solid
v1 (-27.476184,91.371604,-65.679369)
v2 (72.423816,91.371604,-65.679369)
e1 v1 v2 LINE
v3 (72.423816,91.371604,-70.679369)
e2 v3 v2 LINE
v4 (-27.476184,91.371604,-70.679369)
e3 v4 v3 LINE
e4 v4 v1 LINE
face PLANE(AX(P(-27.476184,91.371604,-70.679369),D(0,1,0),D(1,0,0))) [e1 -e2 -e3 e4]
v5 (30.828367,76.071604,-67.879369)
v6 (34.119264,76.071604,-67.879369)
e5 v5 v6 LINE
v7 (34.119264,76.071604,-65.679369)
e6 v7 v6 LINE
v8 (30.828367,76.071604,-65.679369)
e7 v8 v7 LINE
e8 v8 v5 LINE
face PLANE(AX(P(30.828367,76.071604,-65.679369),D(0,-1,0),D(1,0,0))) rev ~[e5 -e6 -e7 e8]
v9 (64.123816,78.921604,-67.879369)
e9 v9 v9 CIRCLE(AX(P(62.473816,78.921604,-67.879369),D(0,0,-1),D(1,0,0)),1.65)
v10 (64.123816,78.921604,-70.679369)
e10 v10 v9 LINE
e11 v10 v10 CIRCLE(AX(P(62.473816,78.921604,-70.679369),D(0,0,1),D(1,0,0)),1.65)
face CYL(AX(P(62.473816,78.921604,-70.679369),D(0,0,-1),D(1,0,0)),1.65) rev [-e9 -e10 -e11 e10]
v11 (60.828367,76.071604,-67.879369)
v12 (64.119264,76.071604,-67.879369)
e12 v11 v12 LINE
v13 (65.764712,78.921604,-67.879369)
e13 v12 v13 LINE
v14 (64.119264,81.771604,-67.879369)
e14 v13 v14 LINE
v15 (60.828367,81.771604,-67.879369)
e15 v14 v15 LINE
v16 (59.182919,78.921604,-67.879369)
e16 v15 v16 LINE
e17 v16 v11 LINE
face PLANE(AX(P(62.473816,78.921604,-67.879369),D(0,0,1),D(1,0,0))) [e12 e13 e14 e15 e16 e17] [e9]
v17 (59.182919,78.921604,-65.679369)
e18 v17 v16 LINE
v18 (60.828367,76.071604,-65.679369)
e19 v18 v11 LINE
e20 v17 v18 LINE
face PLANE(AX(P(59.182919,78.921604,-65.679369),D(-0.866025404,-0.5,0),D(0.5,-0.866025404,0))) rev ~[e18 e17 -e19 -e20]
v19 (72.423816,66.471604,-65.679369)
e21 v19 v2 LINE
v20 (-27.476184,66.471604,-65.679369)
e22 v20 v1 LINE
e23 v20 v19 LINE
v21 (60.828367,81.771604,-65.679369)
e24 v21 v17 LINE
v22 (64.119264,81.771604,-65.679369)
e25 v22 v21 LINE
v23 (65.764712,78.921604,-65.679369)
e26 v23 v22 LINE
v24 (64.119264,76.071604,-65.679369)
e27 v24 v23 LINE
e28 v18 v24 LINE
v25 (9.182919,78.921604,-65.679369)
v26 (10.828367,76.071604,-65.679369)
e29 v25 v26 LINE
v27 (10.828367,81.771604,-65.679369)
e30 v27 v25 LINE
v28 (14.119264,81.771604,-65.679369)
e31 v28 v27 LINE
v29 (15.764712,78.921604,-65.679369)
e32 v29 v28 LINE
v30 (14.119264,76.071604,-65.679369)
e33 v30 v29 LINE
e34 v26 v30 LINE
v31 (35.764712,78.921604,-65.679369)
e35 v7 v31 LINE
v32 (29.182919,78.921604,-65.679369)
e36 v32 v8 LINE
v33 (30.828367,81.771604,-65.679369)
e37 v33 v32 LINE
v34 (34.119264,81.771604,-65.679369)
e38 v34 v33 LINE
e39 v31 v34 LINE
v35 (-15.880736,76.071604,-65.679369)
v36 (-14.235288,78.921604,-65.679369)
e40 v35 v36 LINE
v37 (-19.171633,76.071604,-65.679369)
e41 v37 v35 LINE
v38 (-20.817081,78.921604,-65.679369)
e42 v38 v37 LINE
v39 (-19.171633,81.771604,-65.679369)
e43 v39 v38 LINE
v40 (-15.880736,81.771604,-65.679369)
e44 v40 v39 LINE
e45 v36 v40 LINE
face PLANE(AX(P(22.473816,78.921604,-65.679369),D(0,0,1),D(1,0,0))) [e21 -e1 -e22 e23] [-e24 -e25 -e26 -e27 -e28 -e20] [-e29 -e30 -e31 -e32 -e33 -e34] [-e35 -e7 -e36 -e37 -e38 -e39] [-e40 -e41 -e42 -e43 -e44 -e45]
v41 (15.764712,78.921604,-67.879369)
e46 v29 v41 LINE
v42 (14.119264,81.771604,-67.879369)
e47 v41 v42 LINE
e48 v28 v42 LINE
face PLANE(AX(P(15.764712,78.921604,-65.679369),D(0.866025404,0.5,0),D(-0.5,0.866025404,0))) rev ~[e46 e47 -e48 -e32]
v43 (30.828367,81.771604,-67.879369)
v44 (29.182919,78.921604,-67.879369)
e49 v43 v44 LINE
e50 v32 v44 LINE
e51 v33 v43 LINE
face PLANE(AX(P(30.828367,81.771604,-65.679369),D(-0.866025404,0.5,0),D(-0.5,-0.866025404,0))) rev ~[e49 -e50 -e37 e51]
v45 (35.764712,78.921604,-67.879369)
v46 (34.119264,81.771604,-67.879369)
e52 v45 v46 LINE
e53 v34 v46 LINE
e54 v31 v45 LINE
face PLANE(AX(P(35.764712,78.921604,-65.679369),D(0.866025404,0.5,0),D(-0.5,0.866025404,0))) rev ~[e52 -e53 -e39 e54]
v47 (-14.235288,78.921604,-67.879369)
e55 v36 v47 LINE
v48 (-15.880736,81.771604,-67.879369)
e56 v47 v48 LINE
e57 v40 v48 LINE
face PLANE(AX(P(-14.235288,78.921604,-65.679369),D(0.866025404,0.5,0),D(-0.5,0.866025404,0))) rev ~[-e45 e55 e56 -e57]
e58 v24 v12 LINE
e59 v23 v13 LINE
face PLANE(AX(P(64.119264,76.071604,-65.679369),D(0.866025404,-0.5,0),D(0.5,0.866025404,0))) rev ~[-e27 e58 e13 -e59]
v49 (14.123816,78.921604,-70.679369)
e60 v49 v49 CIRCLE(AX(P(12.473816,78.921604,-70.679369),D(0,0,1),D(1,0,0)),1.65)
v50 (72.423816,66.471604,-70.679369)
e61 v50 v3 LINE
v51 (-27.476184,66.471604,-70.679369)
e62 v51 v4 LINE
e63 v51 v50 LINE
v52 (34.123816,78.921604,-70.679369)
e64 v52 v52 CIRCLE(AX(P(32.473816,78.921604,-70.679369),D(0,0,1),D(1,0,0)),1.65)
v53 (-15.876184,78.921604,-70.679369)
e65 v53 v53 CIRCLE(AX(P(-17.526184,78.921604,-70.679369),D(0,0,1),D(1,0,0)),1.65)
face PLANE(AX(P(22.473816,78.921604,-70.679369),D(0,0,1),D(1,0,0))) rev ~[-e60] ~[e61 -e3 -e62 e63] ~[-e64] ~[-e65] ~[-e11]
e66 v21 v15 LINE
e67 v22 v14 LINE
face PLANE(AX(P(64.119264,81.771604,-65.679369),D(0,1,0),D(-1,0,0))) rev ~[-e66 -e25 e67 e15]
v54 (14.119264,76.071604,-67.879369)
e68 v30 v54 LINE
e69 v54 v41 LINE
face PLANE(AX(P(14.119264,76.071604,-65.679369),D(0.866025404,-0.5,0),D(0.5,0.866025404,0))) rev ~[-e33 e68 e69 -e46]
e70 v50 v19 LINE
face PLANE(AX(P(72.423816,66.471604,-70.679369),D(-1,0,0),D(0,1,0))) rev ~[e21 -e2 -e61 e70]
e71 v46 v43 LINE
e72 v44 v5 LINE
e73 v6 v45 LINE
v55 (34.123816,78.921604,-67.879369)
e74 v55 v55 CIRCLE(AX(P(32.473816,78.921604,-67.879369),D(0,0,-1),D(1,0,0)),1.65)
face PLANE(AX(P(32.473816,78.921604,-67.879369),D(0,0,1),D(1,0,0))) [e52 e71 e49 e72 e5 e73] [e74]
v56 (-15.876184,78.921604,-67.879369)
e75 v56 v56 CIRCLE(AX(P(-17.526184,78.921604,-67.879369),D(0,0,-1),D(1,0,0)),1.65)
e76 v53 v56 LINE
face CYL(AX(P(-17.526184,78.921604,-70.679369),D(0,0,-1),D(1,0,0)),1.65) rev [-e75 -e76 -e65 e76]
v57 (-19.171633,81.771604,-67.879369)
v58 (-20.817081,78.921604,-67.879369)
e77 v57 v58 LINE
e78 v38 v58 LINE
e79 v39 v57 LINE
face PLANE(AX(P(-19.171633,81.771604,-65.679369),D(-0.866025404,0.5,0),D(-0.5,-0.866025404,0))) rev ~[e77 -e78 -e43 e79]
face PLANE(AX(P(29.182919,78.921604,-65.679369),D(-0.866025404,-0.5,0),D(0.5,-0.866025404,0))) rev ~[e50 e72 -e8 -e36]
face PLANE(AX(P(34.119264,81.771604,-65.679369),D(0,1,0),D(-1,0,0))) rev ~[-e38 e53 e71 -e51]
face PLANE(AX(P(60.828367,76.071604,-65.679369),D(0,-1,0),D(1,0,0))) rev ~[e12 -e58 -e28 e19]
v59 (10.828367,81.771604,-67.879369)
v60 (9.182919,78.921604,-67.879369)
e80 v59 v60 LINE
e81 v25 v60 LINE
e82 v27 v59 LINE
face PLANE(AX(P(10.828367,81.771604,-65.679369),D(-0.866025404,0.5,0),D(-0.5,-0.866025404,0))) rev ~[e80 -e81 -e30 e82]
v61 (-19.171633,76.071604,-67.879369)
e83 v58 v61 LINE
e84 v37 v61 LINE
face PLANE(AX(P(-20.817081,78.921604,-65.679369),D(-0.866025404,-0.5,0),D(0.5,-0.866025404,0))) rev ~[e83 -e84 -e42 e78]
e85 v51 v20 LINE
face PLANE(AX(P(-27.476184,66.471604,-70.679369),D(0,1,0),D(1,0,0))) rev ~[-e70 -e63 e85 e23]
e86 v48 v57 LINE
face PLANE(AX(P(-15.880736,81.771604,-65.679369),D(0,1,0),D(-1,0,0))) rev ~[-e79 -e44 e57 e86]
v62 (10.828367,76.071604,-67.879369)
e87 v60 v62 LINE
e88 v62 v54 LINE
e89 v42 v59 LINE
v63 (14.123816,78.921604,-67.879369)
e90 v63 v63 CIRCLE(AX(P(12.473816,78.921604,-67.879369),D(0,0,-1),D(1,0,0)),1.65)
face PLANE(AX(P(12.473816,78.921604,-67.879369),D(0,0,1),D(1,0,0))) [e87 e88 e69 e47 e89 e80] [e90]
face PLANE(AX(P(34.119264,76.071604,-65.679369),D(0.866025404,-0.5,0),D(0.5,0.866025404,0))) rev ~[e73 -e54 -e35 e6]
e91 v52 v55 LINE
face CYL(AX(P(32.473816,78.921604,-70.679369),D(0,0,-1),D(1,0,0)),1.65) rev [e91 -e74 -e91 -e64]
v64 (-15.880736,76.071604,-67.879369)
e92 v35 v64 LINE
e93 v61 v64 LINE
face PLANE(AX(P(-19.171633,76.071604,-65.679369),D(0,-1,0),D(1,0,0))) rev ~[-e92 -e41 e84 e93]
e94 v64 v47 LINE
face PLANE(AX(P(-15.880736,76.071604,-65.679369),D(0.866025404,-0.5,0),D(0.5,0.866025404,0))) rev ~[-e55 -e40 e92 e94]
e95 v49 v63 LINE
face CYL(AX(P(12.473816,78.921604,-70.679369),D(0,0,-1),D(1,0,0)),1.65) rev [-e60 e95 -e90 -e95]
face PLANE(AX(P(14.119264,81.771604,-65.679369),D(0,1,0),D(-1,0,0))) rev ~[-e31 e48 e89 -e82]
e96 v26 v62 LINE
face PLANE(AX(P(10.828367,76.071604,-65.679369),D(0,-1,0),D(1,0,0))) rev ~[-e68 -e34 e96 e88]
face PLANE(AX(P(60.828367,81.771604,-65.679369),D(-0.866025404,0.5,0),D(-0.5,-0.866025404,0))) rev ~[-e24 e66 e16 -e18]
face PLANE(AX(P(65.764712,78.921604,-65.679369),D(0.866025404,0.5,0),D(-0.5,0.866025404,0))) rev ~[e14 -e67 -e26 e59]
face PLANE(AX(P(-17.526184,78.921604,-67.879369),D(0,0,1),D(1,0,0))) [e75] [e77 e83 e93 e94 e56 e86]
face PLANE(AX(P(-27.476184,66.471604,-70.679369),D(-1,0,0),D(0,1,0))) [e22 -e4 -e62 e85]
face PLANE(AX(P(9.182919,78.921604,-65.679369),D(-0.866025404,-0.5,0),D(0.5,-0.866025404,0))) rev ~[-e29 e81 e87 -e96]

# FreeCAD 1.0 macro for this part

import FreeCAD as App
import Part
import Sketcher
Q = App.Units.Quantity


def add_polygon(sketch, points):
    """Adds a closed chain of lines whose ends are joined by coincident constraints."""
    first, n = sketch.GeometryCount, len(points)
    for a, b in zip(points, points[1:] + points[:1]):
        sketch.addGeometry(Part.LineSegment(App.Vector(*a, 0), App.Vector(*b, 0)), False)
    for i in range(n):
        sketch.addConstraint(Sketcher.Constraint("Coincident", first + i, 2, first + (i + 1) % n, 1))

doc = App.newDocument("Part")
body = doc.addObject("PartDesign::Body", "Body")

sketch1 = body.newObject("Sketcher::SketchObject", "Sketch")
sketch1.AttachmentSupport = (doc.getObject("XY_Plane"), [""])
sketch1.MapMode = "FlatFace"
sketch1.AttachmentOffset = App.Placement(App.Vector(0, 0, -70.679369), App.Rotation())
add_polygon(sketch1, [(-27.5, 91.4), (-27.5, 66.5), (72.4, 66.5), (72.4, 91.4)])
sketch1.addGeometry(Part.Circle(App.Vector(-17.5, 78.9, 0), App.Vector(0, 0, 1), 1.6), False)
sketch1.addGeometry(Part.Circle(App.Vector(12.5, 78.9, 0), App.Vector(0, 0, 1), 1.6), False)
sketch1.addGeometry(Part.Circle(App.Vector(32.5, 78.9, 0), App.Vector(0, 0, 1), 1.6), False)
sketch1.addGeometry(Part.Circle(App.Vector(62.5, 78.9, 0), App.Vector(0, 0, 1), 1.6), False)
sketch1.addConstraint([
    Sketcher.Constraint("Vertical", 0),
    Sketcher.Constraint("Horizontal", 1),
    Sketcher.Constraint("Vertical", 2),
    Sketcher.Constraint("Horizontal", 3),
    Sketcher.Constraint("Equal", 4, 5),
    Sketcher.Constraint("Equal", 5, 6),
    Sketcher.Constraint("Equal", 6, 7),
    Sketcher.Constraint("Horizontal", 4, 3, 5, 3),
    Sketcher.Constraint("Horizontal", 5, 3, 6, 3),
    Sketcher.Constraint("Horizontal", 6, 3, 7, 3),
    Sketcher.Constraint("Diameter", 4, Q("3.3 mm")),
    Sketcher.Constraint("DistanceX", 1, 1, 1, 2, Q("99.9 mm")),
    Sketcher.Constraint("DistanceY", 0, 2, 0, 1, Q("24.9 mm")),
    Sketcher.Constraint("DistanceX", 4, 3, 5, 3, Q("30 mm")),
    Sketcher.Constraint("DistanceX", 5, 3, 6, 3, Q("20 mm")),
    Sketcher.Constraint("DistanceX", 6, 3, 7, 3, Q("30 mm")),
    Sketcher.Constraint("DistanceX", 0, 2, 4, 3, Q("9.95 mm")),
    Sketcher.Constraint("DistanceY", 0, 2, 4, 3, Q("12.45 mm")),
    Sketcher.Constraint("DistanceX", 4, 3, -1, 1, Q("17.526184 mm")),
    Sketcher.Constraint("DistanceY", -1, 1, 4, 3, Q("78.921604 mm")),
])
pad1 = body.newObject("PartDesign::Pad", "Pad")
pad1.Profile = sketch1
pad1.Length = 5

sketch2 = body.newObject("Sketcher::SketchObject", "Sketch001")
sketch2.AttachmentSupport = (doc.getObject("XY_Plane"), [""])
sketch2.MapMode = "FlatFace"
sketch2.AttachmentOffset = App.Placement(App.Vector(0, 0, -65.679369), App.Rotation())
add_polygon(sketch2, [(-15.9, 76.1), (-14.2, 78.9), (-15.9, 81.8), (-19.2, 81.8), (-20.8, 78.9), (-19.2, 76.1)])
add_polygon(sketch2, [(14.1, 76.1), (15.8, 78.9), (14.1, 81.8), (10.8, 81.8), (9.2, 78.9), (10.8, 76.1)])
add_polygon(sketch2, [(34.1, 76.1), (35.8, 78.9), (34.1, 81.8), (30.8, 81.8), (29.2, 78.9), (30.8, 76.1)])
add_polygon(sketch2, [(64.1, 76.1), (65.8, 78.9), (64.1, 81.8), (60.8, 81.8), (59.2, 78.9), (60.8, 76.1)])
sketch2.addConstraint([
    Sketcher.Constraint("Horizontal", 2),
    Sketcher.Constraint("Horizontal", 5),
    Sketcher.Constraint("Horizontal", 8),
    Sketcher.Constraint("Horizontal", 11),
    Sketcher.Constraint("Horizontal", 14),
    Sketcher.Constraint("Horizontal", 17),
    Sketcher.Constraint("Horizontal", 20),
    Sketcher.Constraint("Horizontal", 23),
    Sketcher.Constraint("Parallel", 0, 3),
    Sketcher.Constraint("Parallel", 1, 4),
    Sketcher.Constraint("Parallel", 3, 6),
    Sketcher.Constraint("Parallel", 4, 7),
    Sketcher.Constraint("Parallel", 6, 9),
    Sketcher.Constraint("Parallel", 7, 10),
    Sketcher.Constraint("Parallel", 9, 12),
    Sketcher.Constraint("Parallel", 10, 13),
    Sketcher.Constraint("Parallel", 12, 15),
    Sketcher.Constraint("Parallel", 13, 16),
    Sketcher.Constraint("Parallel", 15, 18),
    Sketcher.Constraint("Parallel", 16, 19),
    Sketcher.Constraint("Parallel", 18, 21),
    Sketcher.Constraint("Parallel", 19, 22),
    Sketcher.Constraint("Horizontal", 0, 2, 3, 2),
    Sketcher.Constraint("Horizontal", 3, 2, 6, 2),
    Sketcher.Constraint("Horizontal", 2, 2, 7, 2),
    Sketcher.Constraint("Horizontal", 6, 2, 9, 2),
    Sketcher.Constraint("Horizontal", 5, 2, 10, 2),
    Sketcher.Constraint("Horizontal", 9, 2, 12, 2),
    Sketcher.Constraint("Horizontal", 8, 2, 13, 2),
    Sketcher.Constraint("Horizontal", 12, 2, 15, 2),
    Sketcher.Constraint("Horizontal", 11, 2, 16, 2),
    Sketcher.Constraint("Horizontal", 15, 2, 18, 2),
    Sketcher.Constraint("Horizontal", 14, 2, 19, 2),
    Sketcher.Constraint("Horizontal", 18, 2, 21, 2),
    Sketcher.Constraint("Horizontal", 17, 2, 22, 2),
    Sketcher.Constraint("Vertical", 2, 2, 4, 2),
    Sketcher.Constraint("Vertical", 1, 2, 5, 2),
    Sketcher.Constraint("Equal", 5, 8),
    Sketcher.Constraint("Equal", 11, 14),
    Sketcher.Constraint("Equal", 17, 20),
    Sketcher.Constraint("Angle", 0, Q("60 deg")),
    Sketcher.Constraint("DistanceX", 0, 2, 6, 2, Q("30 mm")),
    Sketcher.Constraint("DistanceX", 6, 2, 12, 2, Q("20 mm")),
    Sketcher.Constraint("DistanceX", 12, 2, 18, 2, Q("30 mm")),
    Sketcher.Constraint("DistanceY", 4, 2, 2, 2, Q("5.7 mm")),
    Sketcher.Constraint("DistanceX", 2, 2, 2, 1, Q("3.290897 mm")),
    Sketcher.Constraint("DistanceX", 3, 2, -1, 1, Q("20.817081 mm")),
    Sketcher.Constraint("DistanceY", -1, 1, 0, 2, Q("78.921604 mm")),
])
pocket1 = body.newObject("PartDesign::Pocket", "Pocket")
pocket1.Profile = sketch2
pocket1.Length = 2.2

doc.recompute()
